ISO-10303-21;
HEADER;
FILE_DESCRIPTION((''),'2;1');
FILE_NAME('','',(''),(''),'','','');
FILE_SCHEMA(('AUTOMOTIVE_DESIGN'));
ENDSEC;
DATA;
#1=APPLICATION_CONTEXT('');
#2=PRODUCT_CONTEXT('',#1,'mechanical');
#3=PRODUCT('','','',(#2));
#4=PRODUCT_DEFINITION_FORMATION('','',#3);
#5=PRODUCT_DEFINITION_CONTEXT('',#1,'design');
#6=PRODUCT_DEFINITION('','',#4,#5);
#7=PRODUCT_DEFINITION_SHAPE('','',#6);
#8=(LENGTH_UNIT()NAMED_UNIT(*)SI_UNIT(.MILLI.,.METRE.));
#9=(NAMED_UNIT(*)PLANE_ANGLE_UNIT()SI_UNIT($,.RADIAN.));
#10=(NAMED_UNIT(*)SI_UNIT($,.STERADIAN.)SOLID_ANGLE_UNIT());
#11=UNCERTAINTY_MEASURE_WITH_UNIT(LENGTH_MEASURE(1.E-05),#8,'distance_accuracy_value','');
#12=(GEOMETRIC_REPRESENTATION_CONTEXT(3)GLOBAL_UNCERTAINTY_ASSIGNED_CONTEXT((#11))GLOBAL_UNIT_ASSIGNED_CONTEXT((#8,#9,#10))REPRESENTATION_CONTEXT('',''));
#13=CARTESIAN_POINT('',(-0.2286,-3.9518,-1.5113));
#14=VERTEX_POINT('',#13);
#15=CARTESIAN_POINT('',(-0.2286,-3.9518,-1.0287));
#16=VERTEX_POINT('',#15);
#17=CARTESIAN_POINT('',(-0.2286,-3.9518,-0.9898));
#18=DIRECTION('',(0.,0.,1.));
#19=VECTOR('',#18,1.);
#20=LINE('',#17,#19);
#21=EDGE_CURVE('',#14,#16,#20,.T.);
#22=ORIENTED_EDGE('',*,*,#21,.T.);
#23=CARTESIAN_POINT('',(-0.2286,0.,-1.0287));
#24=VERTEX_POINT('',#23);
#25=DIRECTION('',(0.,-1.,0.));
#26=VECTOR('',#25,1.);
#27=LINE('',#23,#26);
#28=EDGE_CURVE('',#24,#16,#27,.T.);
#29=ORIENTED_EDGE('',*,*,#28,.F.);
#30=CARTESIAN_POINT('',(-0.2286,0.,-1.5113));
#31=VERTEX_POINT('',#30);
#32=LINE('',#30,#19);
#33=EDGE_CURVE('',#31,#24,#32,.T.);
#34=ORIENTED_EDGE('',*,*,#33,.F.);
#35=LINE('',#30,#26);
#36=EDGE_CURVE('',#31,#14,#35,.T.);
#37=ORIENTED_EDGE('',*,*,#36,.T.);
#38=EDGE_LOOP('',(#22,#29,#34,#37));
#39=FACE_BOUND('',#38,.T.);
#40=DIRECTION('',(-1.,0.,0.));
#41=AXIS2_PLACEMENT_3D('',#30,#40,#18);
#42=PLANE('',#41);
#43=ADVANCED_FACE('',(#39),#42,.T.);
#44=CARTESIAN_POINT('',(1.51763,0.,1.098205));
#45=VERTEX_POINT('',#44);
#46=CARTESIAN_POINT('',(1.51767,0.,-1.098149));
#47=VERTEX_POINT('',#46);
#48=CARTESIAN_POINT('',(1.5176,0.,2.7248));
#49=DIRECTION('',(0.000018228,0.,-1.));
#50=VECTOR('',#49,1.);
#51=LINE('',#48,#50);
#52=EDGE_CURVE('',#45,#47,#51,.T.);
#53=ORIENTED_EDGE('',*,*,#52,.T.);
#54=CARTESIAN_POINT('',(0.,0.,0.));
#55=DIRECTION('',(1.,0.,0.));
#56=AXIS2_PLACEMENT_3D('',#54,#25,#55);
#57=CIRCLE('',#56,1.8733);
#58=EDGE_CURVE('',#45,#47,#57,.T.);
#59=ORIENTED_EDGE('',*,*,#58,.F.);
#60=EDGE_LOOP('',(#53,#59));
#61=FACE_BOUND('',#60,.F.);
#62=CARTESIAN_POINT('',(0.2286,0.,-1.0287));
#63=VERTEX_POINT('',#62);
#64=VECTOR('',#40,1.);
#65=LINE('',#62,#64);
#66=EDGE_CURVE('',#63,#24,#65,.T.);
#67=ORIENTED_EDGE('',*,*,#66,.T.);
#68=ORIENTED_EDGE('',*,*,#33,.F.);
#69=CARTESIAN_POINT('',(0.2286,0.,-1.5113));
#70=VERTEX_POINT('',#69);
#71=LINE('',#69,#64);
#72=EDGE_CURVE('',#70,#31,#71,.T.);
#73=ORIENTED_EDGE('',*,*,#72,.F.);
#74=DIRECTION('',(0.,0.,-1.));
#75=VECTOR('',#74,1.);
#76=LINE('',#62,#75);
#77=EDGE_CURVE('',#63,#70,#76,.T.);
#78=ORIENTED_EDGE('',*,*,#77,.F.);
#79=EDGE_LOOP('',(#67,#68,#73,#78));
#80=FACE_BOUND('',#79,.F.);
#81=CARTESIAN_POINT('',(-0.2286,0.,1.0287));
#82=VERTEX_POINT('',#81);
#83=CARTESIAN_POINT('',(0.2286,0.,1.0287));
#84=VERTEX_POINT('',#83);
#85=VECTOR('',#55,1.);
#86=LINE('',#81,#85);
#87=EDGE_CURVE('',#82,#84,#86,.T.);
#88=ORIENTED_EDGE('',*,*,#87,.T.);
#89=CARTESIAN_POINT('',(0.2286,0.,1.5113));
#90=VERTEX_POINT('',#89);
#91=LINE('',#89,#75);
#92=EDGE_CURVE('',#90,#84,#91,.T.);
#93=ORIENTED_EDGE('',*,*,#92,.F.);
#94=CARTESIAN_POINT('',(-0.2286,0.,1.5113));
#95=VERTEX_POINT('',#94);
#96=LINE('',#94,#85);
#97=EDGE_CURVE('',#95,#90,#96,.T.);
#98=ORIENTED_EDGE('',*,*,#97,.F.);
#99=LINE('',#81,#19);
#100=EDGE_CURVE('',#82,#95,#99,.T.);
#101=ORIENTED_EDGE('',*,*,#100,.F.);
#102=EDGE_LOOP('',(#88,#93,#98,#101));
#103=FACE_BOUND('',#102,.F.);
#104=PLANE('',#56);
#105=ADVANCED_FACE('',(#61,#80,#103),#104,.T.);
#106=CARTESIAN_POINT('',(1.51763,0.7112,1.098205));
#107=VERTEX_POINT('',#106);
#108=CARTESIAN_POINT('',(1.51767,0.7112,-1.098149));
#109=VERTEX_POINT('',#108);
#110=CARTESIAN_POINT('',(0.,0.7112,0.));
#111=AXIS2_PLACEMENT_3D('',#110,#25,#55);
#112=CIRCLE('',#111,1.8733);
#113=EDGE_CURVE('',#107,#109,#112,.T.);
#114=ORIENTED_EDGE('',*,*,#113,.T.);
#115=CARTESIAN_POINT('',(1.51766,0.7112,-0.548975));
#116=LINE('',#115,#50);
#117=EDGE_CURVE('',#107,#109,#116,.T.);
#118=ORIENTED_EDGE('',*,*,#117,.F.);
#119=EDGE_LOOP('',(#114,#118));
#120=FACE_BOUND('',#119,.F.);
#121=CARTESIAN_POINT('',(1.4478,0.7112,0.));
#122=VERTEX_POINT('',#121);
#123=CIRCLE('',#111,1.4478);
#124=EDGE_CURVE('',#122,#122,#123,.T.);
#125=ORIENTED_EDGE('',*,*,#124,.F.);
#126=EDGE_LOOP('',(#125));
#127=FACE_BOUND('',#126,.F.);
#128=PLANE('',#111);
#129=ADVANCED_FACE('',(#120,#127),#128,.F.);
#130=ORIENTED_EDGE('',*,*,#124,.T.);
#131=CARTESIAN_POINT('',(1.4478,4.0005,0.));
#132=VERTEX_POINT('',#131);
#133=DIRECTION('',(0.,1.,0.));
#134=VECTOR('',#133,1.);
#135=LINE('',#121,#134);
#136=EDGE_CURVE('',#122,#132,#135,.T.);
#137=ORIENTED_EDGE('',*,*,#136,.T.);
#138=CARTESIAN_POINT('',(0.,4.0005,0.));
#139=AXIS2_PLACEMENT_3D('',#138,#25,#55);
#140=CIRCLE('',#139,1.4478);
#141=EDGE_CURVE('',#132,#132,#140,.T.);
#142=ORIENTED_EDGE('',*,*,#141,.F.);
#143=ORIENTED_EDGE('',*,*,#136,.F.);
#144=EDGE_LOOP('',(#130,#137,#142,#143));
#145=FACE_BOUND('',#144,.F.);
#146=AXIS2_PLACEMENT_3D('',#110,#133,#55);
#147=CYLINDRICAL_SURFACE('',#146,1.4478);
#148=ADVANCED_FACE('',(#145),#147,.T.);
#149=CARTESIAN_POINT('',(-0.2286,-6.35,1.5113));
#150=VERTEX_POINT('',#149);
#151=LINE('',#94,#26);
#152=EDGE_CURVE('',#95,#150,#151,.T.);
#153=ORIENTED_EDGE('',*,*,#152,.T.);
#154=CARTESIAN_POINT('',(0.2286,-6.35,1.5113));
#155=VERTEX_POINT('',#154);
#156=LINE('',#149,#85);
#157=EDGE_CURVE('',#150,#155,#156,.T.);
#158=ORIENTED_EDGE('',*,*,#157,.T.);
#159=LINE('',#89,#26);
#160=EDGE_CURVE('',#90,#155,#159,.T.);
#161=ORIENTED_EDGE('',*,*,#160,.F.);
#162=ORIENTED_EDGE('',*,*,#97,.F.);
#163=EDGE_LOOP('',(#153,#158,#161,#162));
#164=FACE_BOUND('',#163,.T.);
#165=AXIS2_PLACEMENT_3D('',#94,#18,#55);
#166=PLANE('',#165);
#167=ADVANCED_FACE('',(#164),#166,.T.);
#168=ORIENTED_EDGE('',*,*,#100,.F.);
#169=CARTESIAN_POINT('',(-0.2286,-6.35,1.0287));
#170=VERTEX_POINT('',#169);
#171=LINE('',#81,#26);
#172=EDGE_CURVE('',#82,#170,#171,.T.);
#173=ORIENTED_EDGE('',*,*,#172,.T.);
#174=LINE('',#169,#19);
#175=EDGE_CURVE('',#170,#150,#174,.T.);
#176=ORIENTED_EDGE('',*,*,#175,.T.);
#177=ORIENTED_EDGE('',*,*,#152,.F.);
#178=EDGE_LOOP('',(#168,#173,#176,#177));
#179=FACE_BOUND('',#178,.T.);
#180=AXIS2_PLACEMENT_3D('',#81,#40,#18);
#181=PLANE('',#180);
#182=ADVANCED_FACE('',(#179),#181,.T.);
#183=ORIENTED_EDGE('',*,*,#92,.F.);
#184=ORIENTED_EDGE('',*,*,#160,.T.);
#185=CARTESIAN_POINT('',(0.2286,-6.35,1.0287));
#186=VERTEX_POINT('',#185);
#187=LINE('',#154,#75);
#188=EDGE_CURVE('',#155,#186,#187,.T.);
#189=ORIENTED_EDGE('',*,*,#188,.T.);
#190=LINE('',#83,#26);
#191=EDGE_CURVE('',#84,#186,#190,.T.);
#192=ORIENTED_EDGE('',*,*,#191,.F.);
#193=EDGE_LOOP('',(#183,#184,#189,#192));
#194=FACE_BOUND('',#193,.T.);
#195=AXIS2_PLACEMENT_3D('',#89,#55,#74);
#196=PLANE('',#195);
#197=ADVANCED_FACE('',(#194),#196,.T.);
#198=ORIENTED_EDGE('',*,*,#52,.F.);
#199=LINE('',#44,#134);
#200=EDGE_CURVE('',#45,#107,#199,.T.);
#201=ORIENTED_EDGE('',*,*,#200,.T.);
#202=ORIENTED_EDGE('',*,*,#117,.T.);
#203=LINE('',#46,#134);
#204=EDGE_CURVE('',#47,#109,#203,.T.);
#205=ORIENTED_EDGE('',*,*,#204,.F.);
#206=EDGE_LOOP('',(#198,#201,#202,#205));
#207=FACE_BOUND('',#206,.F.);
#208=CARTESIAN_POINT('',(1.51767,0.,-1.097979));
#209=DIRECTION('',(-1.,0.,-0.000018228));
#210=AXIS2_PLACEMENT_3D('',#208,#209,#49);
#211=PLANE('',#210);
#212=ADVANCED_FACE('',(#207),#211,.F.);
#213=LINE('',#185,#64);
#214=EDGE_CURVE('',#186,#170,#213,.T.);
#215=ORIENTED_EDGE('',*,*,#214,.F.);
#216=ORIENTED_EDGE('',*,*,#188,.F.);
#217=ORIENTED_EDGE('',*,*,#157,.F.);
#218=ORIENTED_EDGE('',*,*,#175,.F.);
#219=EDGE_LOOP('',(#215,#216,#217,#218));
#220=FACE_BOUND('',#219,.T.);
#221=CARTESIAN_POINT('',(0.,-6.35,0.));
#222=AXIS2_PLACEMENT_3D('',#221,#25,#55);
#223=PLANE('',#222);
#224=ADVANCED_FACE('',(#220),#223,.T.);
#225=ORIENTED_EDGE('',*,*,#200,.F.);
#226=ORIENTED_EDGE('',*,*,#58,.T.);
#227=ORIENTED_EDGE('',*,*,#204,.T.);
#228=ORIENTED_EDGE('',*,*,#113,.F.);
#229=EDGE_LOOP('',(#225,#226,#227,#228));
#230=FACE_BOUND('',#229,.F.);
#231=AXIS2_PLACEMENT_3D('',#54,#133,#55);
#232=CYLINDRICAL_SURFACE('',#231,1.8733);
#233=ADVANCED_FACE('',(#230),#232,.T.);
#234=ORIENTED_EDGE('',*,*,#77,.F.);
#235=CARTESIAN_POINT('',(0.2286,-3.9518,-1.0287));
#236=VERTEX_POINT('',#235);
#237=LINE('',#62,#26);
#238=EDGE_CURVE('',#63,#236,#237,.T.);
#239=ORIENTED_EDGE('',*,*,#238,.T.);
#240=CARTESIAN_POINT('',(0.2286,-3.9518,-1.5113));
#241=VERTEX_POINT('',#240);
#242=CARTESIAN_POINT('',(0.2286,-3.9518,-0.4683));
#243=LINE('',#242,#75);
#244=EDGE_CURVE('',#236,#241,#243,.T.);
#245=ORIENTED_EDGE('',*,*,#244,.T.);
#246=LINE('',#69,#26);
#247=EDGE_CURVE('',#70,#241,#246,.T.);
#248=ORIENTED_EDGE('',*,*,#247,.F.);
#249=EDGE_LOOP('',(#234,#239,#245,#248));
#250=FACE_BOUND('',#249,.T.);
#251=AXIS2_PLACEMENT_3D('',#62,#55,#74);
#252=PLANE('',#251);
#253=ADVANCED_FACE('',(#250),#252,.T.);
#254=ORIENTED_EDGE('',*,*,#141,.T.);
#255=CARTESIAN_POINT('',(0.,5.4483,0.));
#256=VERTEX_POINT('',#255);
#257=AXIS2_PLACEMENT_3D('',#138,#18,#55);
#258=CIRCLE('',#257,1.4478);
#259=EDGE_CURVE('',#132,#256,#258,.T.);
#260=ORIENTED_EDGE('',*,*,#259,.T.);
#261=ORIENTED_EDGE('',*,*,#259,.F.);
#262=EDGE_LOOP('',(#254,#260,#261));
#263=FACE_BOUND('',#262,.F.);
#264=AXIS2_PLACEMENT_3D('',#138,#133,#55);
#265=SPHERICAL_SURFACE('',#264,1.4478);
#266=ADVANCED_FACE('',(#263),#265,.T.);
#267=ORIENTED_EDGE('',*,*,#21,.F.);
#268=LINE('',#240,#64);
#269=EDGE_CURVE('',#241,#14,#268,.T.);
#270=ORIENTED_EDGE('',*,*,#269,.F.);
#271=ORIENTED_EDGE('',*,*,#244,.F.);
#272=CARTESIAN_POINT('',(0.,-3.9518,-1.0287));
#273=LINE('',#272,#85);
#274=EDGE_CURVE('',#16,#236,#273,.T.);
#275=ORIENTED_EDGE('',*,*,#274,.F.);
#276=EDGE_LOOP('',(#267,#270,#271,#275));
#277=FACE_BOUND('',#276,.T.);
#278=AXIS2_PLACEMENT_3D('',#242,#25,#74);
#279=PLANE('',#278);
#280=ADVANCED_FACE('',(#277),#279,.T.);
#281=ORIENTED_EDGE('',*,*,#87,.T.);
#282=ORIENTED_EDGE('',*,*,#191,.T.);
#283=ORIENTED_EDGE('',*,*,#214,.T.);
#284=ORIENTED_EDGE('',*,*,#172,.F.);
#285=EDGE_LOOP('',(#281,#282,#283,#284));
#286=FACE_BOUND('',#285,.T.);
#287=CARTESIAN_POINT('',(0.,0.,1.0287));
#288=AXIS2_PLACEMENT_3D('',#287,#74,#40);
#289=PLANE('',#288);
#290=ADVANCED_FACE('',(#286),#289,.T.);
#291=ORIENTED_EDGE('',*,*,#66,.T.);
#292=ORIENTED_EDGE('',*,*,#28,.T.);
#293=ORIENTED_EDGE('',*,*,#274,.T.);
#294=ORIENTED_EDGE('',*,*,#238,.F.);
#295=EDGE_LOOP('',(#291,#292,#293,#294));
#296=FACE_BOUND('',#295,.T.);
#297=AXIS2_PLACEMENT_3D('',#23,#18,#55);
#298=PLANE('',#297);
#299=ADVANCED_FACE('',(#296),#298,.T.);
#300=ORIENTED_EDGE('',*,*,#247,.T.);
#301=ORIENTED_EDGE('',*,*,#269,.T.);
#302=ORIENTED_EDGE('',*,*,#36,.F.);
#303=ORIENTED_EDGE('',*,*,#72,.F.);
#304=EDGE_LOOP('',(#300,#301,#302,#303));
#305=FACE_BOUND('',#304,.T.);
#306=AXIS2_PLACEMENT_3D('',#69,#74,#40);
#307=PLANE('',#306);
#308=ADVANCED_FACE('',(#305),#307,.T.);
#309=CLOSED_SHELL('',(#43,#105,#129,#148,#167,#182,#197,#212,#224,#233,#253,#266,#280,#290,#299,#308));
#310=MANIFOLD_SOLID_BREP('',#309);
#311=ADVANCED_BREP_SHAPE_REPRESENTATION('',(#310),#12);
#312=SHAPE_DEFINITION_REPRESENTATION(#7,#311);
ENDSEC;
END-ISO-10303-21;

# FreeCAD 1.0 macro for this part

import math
import FreeCAD as App
import Part
import Sketcher

V = App.Vector
Q = App.Units.Quantity


def add_polygon(sketch, points):
    """Adds a closed chain of lines whose ends are joined by coincident constraints."""
    first, n = sketch.GeometryCount, len(points)
    for a, b in zip(points, points[1:] + points[:1]):
        sketch.addGeometry(Part.LineSegment(App.Vector(*a, 0), App.Vector(*b, 0)), False)
    for i in range(n):
        sketch.addConstraint(Sketcher.Constraint("Coincident", first + i, 2, first + (i + 1) % n, 1))

doc = App.newDocument("Part")
params = doc.addObject("Spreadsheet::Sheet", "Params")
for row, (alias, value) in enumerate([
    ("sketch1_radius", "0.057 in"),
    ("sketch1_height", "0.028 in"),
    ("revolution_angle", "360 deg"),
    ("sketch2_height", "0.216 in"),
    ("pocket1_length", "1 in"),
    ("sketch3_width", "0.018 in"),
    ("sketch3_height", "0.019 in"),
    ("pad1_length", "0.25 in"),
    ("pocket2_length", "1 in"),
], start=1):
    params.set(f"A{row}", alias)
    params.set(f"B{row}", "=" + value)
    params.setAlias(f"B{row}", alias)

body = doc.addObject("PartDesign::Body", "Body")

# Sketch on XY plane
sketch1 = body.newObject("Sketcher::SketchObject", "Sketch")
sketch1.AttachmentSupport = (doc.getObject("XY_Plane"), [""])
sketch1.MapMode = "FlatFace"
sketch1.addGeometry([
    Part.LineSegment(V(0, 5.45, 0), V(0, 0, 0)),  # 0
    Part.LineSegment(V(0, 0, 0), V(1.87, 0, 0)),  # 1
    Part.LineSegment(V(1.87, 0, 0), V(1.87, 0.71, 0)),  # 2
    Part.LineSegment(V(1.87, 0.71, 0), V(1.45, 0.71, 0)),  # 3
    Part.LineSegment(V(1.45, 0.71, 0), V(1.45, 4, 0)),  # 4
    Part.ArcOfCircle(Part.Circle(V(0, 4, 0), V(0, 0, 1), 1.45), math.radians(0), math.radians(90)),  # 5
], False)
sketch1.addConstraint([
    Sketcher.Constraint("Coincident", 0, 2, 1, 1),
    Sketcher.Constraint("Coincident", 1, 2, 2, 1),
    Sketcher.Constraint("Coincident", 2, 2, 3, 1),
    Sketcher.Constraint("Coincident", 3, 2, 4, 1),
    Sketcher.Constraint("Tangent", 4, 2, 5, 1),
    Sketcher.Constraint("Coincident", 5, 2, 0, 1),
    Sketcher.Constraint("Vertical", 0),
    Sketcher.Constraint("Horizontal", 1),
    Sketcher.Constraint("Vertical", 2),
    Sketcher.Constraint("Horizontal", 3),
    Sketcher.Constraint("Vertical", 4),
    Sketcher.Constraint("Coincident", 0, 2, -1, 1),
    Sketcher.Constraint("PointOnObject", 5, 3, -2),
    Sketcher.Constraint("Radius", 5, Q("0.057 in")),
    Sketcher.Constraint("DistanceY", 2, 1, 2, 2, Q("0.028 in")),
    Sketcher.Constraint("DistanceY", 0, 2, 0, 1, Q("0.2145 in")),
    Sketcher.Constraint("DistanceX", 1, 1, 1, 2, 1.8733),
])
sketch1.setExpression("Constraints[13]", "Params.sketch1_radius")
sketch1.setExpression("Constraints[14]", "Params.sketch1_height")
revolution = body.newObject("PartDesign::Revolution", "Revolution")
revolution.Profile = sketch1
revolution.ReferenceAxis = (sketch1, ["V_Axis"])
revolution.setExpression("Angle", "Params.revolution_angle")

# Sketch on XZ plane
sketch2 = body.newObject("Sketcher::SketchObject", "Sketch001")
sketch2.AttachmentSupport = (doc.getObject("XZ_Plane"), [""])
sketch2.MapMode = "FlatFace"
add_polygon(sketch2, [(4.3, -2.8), (4.3, 2.7), (1.5, 2.7), (1.5, -2.8)])  # lines 0-3
sketch2.addConstraint([
    Sketcher.Constraint("Vertical", 0),
    Sketcher.Constraint("Horizontal", 1),
    Sketcher.Constraint("Vertical", 2),
    Sketcher.Constraint("Horizontal", 3),
    Sketcher.Constraint("DistanceY", 0, 1, 0, 2, Q("0.216 in")),
    Sketcher.Constraint("DistanceX", 1, 2, 1, 1, 2.7342),
    Sketcher.Constraint("DistanceX", -1, 1, 0, 2, Q("0.1674 in")),
    Sketcher.Constraint("DistanceY", -1, 1, 0, 2, 2.7248),
])
sketch2.setExpression("Constraints[8]", "Params.sketch2_height")
pocket1 = body.newObject("PartDesign::Pocket", "Pocket")
pocket1.Profile = sketch2
pocket1.setExpression("Length", "Params.pocket1_length")

# Sketch on XZ plane
sketch3 = body.newObject("Sketcher::SketchObject", "Sketch002")
sketch3.AttachmentSupport = (doc.getObject("XZ_Plane"), [""])
sketch3.MapMode = "FlatFace"
add_polygon(sketch3, [(-0.23, 1.03), (0.23, 1.03), (0.23, 1.51), (-0.23, 1.51)])  # lines 0-3
add_polygon(sketch3, [(0.23, -1.03), (-0.23, -1.03), (-0.23, -1.51), (0.23, -1.51)])  # lines 4-7
sketch3.addConstraint([
    Sketcher.Constraint("Horizontal", 0),
    Sketcher.Constraint("Vertical", 1),
    Sketcher.Constraint("Horizontal", 2),
    Sketcher.Constraint("Vertical", 3),
    Sketcher.Constraint("Horizontal", 4),
    Sketcher.Constraint("Vertical", 5),
    Sketcher.Constraint("Horizontal", 6),
    Sketcher.Constraint("Vertical", 7),
    Sketcher.Constraint("Symmetric", 0, 2, 4, 2, -1, 1),
    Sketcher.Constraint("Symmetric", 2, 2, 6, 2, -1, 1),
    Sketcher.Constraint("Vertical", 3, 2, 4, 2),
    Sketcher.Constraint("DistanceX", 0, 1, 0, 2, Q("0.018 in")),
    Sketcher.Constraint("DistanceY", 1, 1, 1, 2, Q("0.019 in")),
    Sketcher.Constraint("DistanceY", 5, 2, 2, 2, Q("0.119 in")),
])
sketch3.setExpression("Constraints[19]", "Params.sketch3_width")
sketch3.setExpression("Constraints[20]", "Params.sketch3_height")
pad1 = body.newObject("PartDesign::Pad", "Pad")
pad1.Profile = sketch3
pad1.setExpression("Length", "Params.pad1_length")

# Sketch on YZ plane
sketch4 = body.newObject("Sketcher::SketchObject", "Sketch003")
sketch4.AttachmentSupport = (doc.getObject("YZ_Plane"), [""])
sketch4.MapMode = "FlatFace"
sketch4.AttachmentOffset = App.Placement(V(0, 0, 0.009 * 25.4), App.Rotation())
add_polygon(sketch4, [(-7, -0.5), (-7, -2.7), (-4, -2.7), (-4, -0.5)])  # lines 0-3
sketch4.addConstraint([
    Sketcher.Constraint("Vertical", 0),
    Sketcher.Constraint("Horizontal", 1),
    Sketcher.Constraint("Vertical", 2),
    Sketcher.Constraint("Horizontal", 3),
    Sketcher.Constraint("DistanceX", 1, 1, 1, 2, 3.0414),
    Sketcher.Constraint("DistanceY", 0, 2, 0, 1, 2.257),
    Sketcher.Constraint("DistanceY", 0, 2, -1, 1, Q("0.1073 in")),
    Sketcher.Constraint("DistanceX", 0, 2, -1, 1, 6.9932),
])
pocket2 = body.newObject("PartDesign::Pocket", "Pocket001")
pocket2.Profile = sketch4
pocket2.setExpression("Length", "Params.pocket2_length")

doc.recompute()
